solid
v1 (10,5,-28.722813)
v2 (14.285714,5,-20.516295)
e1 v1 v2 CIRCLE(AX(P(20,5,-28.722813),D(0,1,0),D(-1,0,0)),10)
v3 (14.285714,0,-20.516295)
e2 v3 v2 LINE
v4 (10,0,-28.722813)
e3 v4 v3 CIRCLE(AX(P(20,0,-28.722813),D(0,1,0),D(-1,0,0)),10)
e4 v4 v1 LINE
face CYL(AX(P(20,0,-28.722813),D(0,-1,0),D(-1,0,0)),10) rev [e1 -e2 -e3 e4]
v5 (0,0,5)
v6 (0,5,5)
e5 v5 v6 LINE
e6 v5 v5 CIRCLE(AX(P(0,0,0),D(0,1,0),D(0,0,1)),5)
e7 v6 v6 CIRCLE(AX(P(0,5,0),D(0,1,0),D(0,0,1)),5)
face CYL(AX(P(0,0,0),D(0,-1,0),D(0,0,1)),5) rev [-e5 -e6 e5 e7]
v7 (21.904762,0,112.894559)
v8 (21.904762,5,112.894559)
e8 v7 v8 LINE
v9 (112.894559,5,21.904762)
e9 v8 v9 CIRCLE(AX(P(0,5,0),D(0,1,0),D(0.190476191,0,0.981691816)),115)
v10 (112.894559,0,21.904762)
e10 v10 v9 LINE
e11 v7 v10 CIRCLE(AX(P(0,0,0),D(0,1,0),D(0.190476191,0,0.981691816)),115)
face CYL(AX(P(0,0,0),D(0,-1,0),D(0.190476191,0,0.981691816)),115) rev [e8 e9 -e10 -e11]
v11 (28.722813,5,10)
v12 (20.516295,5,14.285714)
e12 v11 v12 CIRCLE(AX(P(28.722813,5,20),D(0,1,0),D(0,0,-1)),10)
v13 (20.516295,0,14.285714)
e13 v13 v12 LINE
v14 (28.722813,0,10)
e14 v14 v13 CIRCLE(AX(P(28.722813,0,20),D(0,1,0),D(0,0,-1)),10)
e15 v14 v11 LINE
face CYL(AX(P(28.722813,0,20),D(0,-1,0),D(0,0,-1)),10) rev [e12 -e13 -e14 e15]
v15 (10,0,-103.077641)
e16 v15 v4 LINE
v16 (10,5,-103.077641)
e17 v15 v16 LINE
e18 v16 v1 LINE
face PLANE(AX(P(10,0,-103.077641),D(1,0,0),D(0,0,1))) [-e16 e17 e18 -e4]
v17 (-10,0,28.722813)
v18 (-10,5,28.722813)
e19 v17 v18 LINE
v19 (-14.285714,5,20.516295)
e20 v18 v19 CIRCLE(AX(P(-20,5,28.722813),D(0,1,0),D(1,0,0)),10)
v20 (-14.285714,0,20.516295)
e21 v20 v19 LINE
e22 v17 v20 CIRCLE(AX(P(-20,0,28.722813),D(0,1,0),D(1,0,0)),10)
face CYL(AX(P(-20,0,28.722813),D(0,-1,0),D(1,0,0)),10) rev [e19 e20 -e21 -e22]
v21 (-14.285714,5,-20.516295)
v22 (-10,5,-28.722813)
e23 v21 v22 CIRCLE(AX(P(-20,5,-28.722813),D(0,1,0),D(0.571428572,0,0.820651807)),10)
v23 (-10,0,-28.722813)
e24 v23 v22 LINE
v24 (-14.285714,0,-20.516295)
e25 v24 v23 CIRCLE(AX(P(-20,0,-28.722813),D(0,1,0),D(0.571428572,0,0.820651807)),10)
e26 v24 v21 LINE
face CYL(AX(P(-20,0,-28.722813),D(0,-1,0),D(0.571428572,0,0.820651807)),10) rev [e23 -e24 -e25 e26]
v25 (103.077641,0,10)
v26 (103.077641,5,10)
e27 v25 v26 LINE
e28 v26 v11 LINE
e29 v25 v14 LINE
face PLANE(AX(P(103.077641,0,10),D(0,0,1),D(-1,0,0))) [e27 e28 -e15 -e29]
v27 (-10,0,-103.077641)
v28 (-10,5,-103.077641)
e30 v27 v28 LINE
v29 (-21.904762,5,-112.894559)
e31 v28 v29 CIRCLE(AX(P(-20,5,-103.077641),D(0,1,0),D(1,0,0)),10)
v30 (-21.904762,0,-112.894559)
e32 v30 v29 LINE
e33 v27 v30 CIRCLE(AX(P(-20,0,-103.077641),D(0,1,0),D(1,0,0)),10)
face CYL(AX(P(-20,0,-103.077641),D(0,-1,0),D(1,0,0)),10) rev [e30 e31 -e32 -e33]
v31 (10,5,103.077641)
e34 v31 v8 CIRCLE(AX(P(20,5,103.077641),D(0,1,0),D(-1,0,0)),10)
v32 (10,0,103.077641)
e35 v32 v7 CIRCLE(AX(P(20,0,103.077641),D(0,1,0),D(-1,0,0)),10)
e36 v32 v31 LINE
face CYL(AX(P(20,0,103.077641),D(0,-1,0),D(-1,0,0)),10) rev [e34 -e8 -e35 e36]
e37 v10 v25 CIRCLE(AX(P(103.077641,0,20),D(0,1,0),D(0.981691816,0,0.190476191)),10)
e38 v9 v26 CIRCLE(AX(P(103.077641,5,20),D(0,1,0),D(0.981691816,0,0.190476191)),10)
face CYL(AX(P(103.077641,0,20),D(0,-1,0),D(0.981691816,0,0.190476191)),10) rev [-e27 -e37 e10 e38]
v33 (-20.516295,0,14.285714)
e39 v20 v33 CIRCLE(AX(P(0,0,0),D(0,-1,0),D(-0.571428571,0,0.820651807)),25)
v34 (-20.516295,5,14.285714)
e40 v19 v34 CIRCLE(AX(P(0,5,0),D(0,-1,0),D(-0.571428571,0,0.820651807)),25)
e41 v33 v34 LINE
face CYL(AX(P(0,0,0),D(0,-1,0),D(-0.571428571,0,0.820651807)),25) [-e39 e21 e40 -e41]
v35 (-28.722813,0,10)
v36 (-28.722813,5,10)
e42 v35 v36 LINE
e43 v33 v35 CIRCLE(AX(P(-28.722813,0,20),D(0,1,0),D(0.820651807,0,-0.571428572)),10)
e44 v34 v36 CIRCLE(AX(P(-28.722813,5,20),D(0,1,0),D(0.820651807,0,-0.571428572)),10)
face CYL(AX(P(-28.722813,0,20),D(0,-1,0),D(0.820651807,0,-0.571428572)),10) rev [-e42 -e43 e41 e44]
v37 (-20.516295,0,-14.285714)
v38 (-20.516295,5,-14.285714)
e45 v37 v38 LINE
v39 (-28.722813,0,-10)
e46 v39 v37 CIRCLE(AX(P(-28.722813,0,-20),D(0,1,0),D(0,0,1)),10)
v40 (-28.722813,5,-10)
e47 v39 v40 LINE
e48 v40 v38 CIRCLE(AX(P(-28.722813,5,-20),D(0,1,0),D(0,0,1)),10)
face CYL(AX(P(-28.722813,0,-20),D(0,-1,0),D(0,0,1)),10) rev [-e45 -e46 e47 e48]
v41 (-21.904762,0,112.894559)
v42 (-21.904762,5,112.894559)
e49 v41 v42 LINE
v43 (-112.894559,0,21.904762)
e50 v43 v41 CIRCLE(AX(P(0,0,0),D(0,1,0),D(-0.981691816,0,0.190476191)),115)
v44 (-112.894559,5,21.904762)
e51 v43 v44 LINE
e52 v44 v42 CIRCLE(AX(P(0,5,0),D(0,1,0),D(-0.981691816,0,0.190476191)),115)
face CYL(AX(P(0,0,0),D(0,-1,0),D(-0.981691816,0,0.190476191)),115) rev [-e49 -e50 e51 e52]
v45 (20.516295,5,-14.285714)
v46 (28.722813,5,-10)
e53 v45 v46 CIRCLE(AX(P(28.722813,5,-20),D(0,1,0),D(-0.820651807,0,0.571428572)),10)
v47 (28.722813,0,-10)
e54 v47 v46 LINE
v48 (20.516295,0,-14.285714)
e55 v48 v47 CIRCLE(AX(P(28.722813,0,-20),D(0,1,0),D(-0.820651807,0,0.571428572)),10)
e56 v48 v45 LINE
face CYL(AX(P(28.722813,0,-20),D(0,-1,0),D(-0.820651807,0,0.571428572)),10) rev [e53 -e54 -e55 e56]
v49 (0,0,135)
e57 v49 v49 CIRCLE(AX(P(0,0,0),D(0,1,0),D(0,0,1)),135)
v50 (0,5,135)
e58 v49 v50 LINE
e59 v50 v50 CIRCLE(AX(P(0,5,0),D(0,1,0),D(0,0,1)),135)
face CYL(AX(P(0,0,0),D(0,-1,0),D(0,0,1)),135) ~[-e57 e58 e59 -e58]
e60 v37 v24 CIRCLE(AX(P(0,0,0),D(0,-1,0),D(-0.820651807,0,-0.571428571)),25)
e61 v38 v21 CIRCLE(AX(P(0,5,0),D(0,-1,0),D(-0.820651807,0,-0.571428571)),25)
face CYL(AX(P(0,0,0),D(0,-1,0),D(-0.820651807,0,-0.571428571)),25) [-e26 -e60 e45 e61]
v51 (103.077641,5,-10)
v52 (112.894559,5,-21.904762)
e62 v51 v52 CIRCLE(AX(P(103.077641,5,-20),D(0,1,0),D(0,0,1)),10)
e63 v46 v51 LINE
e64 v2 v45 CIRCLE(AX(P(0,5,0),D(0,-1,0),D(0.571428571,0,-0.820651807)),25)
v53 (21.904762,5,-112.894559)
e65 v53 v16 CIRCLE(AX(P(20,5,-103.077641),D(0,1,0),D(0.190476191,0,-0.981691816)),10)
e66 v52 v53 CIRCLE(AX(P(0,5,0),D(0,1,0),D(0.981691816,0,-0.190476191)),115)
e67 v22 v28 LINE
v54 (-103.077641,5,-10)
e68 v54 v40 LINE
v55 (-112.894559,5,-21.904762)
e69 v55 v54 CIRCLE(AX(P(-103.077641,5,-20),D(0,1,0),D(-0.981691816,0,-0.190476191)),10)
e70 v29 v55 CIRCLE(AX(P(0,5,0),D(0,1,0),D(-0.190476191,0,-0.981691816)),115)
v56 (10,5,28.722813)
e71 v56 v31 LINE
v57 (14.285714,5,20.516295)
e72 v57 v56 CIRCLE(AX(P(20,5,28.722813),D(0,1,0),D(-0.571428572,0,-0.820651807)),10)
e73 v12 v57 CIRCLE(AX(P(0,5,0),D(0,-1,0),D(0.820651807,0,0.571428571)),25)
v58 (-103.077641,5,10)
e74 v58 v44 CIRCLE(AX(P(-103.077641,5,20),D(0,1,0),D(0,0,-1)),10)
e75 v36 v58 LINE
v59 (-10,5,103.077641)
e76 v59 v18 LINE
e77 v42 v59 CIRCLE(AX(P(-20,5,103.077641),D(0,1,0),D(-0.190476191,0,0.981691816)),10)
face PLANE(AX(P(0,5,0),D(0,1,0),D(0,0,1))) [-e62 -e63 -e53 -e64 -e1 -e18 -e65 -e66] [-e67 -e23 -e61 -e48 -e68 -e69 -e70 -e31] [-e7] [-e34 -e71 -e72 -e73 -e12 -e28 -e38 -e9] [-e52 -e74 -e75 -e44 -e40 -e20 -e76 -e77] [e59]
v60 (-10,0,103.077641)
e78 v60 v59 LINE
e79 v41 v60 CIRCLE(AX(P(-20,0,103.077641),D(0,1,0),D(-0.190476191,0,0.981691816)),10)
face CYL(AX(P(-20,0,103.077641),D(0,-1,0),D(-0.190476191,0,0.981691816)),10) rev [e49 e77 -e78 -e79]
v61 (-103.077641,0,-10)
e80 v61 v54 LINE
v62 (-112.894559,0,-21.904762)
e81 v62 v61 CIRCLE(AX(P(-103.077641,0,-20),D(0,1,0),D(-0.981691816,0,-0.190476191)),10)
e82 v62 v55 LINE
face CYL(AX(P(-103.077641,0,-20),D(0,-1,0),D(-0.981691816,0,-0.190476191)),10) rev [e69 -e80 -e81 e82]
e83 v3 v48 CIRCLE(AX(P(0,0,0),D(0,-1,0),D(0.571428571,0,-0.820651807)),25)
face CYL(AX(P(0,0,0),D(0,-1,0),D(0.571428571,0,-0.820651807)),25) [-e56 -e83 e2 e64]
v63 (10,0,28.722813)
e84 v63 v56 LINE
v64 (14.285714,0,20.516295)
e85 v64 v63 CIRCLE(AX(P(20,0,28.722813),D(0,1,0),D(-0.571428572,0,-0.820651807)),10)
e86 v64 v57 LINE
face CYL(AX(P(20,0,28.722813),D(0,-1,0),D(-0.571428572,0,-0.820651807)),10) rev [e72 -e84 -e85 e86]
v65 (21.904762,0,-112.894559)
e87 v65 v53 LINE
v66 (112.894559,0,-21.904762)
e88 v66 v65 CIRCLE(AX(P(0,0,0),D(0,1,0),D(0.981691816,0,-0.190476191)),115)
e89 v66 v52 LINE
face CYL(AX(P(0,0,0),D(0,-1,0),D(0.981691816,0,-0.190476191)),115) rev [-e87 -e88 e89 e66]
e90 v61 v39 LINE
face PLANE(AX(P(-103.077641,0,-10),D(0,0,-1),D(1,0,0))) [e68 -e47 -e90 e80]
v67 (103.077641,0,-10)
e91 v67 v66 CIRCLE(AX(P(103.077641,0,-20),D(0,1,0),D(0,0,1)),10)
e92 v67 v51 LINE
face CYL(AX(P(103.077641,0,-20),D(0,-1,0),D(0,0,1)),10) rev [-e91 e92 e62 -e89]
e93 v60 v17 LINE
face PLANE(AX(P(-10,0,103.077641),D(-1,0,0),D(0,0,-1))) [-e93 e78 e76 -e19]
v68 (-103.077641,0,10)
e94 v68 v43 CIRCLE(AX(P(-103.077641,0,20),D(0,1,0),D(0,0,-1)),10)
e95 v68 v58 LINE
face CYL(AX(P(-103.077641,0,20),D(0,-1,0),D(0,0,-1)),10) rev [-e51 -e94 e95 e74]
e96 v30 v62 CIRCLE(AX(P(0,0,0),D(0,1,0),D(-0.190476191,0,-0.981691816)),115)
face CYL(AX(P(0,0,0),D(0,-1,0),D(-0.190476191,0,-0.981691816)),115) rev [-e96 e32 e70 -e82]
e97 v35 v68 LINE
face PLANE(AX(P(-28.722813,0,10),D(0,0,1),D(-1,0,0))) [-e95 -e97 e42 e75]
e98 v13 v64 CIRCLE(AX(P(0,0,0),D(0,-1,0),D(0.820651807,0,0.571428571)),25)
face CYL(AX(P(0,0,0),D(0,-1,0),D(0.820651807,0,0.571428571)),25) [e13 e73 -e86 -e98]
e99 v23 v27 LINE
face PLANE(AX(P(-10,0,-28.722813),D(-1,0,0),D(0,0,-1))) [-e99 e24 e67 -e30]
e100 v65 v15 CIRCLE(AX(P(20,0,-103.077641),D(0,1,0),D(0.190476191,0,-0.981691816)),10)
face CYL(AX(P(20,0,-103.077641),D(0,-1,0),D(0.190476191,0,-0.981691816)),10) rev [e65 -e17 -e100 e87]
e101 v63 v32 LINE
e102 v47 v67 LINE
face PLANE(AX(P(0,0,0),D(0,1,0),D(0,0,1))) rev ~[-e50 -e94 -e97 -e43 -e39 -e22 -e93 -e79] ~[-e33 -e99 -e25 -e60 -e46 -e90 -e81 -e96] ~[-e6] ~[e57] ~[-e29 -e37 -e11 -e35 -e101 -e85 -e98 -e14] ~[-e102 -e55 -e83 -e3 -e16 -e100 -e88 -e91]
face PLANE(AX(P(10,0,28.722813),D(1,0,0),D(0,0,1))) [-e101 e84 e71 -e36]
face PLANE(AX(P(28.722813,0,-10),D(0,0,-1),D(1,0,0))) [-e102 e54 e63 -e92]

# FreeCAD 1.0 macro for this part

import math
import FreeCAD as App
import Part
import Sketcher
from FreeCAD import Vector

doc = App.newDocument("Part")
body = doc.addObject("PartDesign::Body", "Body")

sketch1 = doc.addObject("Sketcher::SketchObject", "Sketch")
body.addObject(sketch1)
sketch1.AttachmentSupport = (doc.XZ_Plane, [""])
sketch1.MapMode = "FlatFace"
sketch1.addGeometry(Part.Circle(Vector(0, 0, 0), Vector(0, 0, 1), 135), False)
sketch1.addGeometry(Part.LineSegment(Vector(-29, -10, 0), Vector(-103, -10, 0)), False)
sketch1.addGeometry(Part.ArcOfCircle(Part.Circle(Vector(-103, -20, 0), Vector(0, 0, 1), 10), math.radians(90), math.radians(191)), False)
sketch1.addGeometry(Part.ArcOfCircle(Part.Circle(Vector(0, 0, 0), Vector(0, 0, 1), 115), math.radians(-169), math.radians(-101)), False)
sketch1.addGeometry(Part.ArcOfCircle(Part.Circle(Vector(-20, -103, 0), Vector(0, 0, 1), 10), math.radians(-101), math.radians(0)), False)
sketch1.addGeometry(Part.LineSegment(Vector(-10, -103, 0), Vector(-10, -29, 0)), False)
sketch1.addGeometry(Part.ArcOfCircle(Part.Circle(Vector(-20, -29, 0), Vector(0, 0, 1), 10), math.radians(0), math.radians(55)), False)
sketch1.addGeometry(Part.ArcOfCircle(Part.Circle(Vector(0, 0, 0), Vector(0, 0, 1), 25), math.radians(-145), math.radians(-125)), False)
sketch1.addGeometry(Part.ArcOfCircle(Part.Circle(Vector(-29, -20, 0), Vector(0, 0, 1), 10), math.radians(35), math.radians(90)), False)
sketch1.addGeometry(Part.LineSegment(Vector(-10, 29, 0), Vector(-10, 103, 0)), False)
sketch1.addGeometry(Part.ArcOfCircle(Part.Circle(Vector(-20, 103, 0), Vector(0, 0, 1), 10), math.radians(0), math.radians(101)), False)
sketch1.addGeometry(Part.ArcOfCircle(Part.Circle(Vector(0, 0, 0), Vector(0, 0, 1), 115), math.radians(101), math.radians(169)), False)
sketch1.addGeometry(Part.ArcOfCircle(Part.Circle(Vector(-103, 20, 0), Vector(0, 0, 1), 10), math.radians(169), math.radians(270)), False)
sketch1.addGeometry(Part.LineSegment(Vector(-103, 10, 0), Vector(-29, 10, 0)), False)
sketch1.addGeometry(Part.ArcOfCircle(Part.Circle(Vector(-29, 20, 0), Vector(0, 0, 1), 10), math.radians(-90), math.radians(-35)), False)
sketch1.addGeometry(Part.ArcOfCircle(Part.Circle(Vector(0, 0, 0), Vector(0, 0, 1), 25), math.radians(125), math.radians(145)), False)
sketch1.addGeometry(Part.ArcOfCircle(Part.Circle(Vector(-20, 29, 0), Vector(0, 0, 1), 10), math.radians(-55), math.radians(0)), False)
sketch1.addGeometry(Part.LineSegment(Vector(10, -29, 0), Vector(10, -103, 0)), False)
sketch1.addGeometry(Part.ArcOfCircle(Part.Circle(Vector(20, -103, 0), Vector(0, 0, 1), 10), math.radians(180), math.radians(281)), False)
sketch1.addGeometry(Part.ArcOfCircle(Part.Circle(Vector(0, 0, 0), Vector(0, 0, 1), 115), math.radians(-79), math.radians(-11)), False)
sketch1.addGeometry(Part.ArcOfCircle(Part.Circle(Vector(103, -20, 0), Vector(0, 0, 1), 10), math.radians(-11), math.radians(90)), False)
sketch1.addGeometry(Part.LineSegment(Vector(103, -10, 0), Vector(29, -10, 0)), False)
sketch1.addGeometry(Part.ArcOfCircle(Part.Circle(Vector(29, -20, 0), Vector(0, 0, 1), 10), math.radians(90), math.radians(145)), False)
sketch1.addGeometry(Part.ArcOfCircle(Part.Circle(Vector(0, 0, 0), Vector(0, 0, 1), 25), math.radians(-55), math.radians(-35)), False)
sketch1.addGeometry(Part.ArcOfCircle(Part.Circle(Vector(20, -29, 0), Vector(0, 0, 1), 10), math.radians(125), math.radians(180)), False)
sketch1.addGeometry(Part.Circle(Vector(0, 0, 0), Vector(0, 0, 1), 5), False)
sketch1.addGeometry(Part.LineSegment(Vector(29, 10, 0), Vector(103, 10, 0)), False)
sketch1.addGeometry(Part.ArcOfCircle(Part.Circle(Vector(103, 20, 0), Vector(0, 0, 1), 10), math.radians(-90), math.radians(11)), False)
sketch1.addGeometry(Part.ArcOfCircle(Part.Circle(Vector(0, 0, 0), Vector(0, 0, 1), 115), math.radians(11), math.radians(79)), False)
sketch1.addGeometry(Part.ArcOfCircle(Part.Circle(Vector(20, 103, 0), Vector(0, 0, 1), 10), math.radians(79), math.radians(180)), False)
sketch1.addGeometry(Part.LineSegment(Vector(10, 103, 0), Vector(10, 29, 0)), False)
sketch1.addGeometry(Part.ArcOfCircle(Part.Circle(Vector(20, 29, 0), Vector(0, 0, 1), 10), math.radians(-180), math.radians(-125)), False)
sketch1.addGeometry(Part.ArcOfCircle(Part.Circle(Vector(0, 0, 0), Vector(0, 0, 1), 25), math.radians(35), math.radians(55)), False)
sketch1.addGeometry(Part.ArcOfCircle(Part.Circle(Vector(29, 20, 0), Vector(0, 0, 1), 10), math.radians(-145), math.radians(-90)), False)
sketch1.addConstraint(Sketcher.Constraint("Tangent", 1, 2, 2, 1))
sketch1.addConstraint(Sketcher.Constraint("Tangent", 2, 2, 3, 1))
sketch1.addConstraint(Sketcher.Constraint("Tangent", 3, 2, 4, 1))
sketch1.addConstraint(Sketcher.Constraint("Tangent", 4, 2, 5, 1))
sketch1.addConstraint(Sketcher.Constraint("Tangent", 5, 2, 6, 1))
sketch1.addConstraint(Sketcher.Constraint("Tangent", 6, 2, 7, 2))
sketch1.addConstraint(Sketcher.Constraint("Tangent", 7, 1, 8, 1))
sketch1.addConstraint(Sketcher.Constraint("Tangent", 8, 2, 1, 1))
sketch1.addConstraint(Sketcher.Constraint("Tangent", 9, 2, 10, 1))
sketch1.addConstraint(Sketcher.Constraint("Tangent", 10, 2, 11, 1))
sketch1.addConstraint(Sketcher.Constraint("Tangent", 11, 2, 12, 1))
sketch1.addConstraint(Sketcher.Constraint("Tangent", 12, 2, 13, 1))
sketch1.addConstraint(Sketcher.Constraint("Tangent", 13, 2, 14, 1))
sketch1.addConstraint(Sketcher.Constraint("Tangent", 14, 2, 15, 2))
sketch1.addConstraint(Sketcher.Constraint("Tangent", 15, 1, 16, 1))
sketch1.addConstraint(Sketcher.Constraint("Tangent", 16, 2, 9, 1))
sketch1.addConstraint(Sketcher.Constraint("Tangent", 17, 2, 18, 1))
sketch1.addConstraint(Sketcher.Constraint("Tangent", 18, 2, 19, 1))
sketch1.addConstraint(Sketcher.Constraint("Tangent", 19, 2, 20, 1))
sketch1.addConstraint(Sketcher.Constraint("Tangent", 20, 2, 21, 1))
sketch1.addConstraint(Sketcher.Constraint("Tangent", 21, 2, 22, 1))
sketch1.addConstraint(Sketcher.Constraint("Tangent", 22, 2, 23, 2))
sketch1.addConstraint(Sketcher.Constraint("Tangent", 23, 1, 24, 1))
sketch1.addConstraint(Sketcher.Constraint("Tangent", 24, 2, 17, 1))
sketch1.addConstraint(Sketcher.Constraint("Tangent", 26, 2, 27, 1))
sketch1.addConstraint(Sketcher.Constraint("Tangent", 27, 2, 28, 1))
sketch1.addConstraint(Sketcher.Constraint("Tangent", 28, 2, 29, 1))
sketch1.addConstraint(Sketcher.Constraint("Tangent", 29, 2, 30, 1))
sketch1.addConstraint(Sketcher.Constraint("Tangent", 30, 2, 31, 1))
sketch1.addConstraint(Sketcher.Constraint("Tangent", 31, 2, 32, 2))
sketch1.addConstraint(Sketcher.Constraint("Tangent", 32, 1, 33, 1))
sketch1.addConstraint(Sketcher.Constraint("Tangent", 33, 2, 26, 1))
sketch1.addConstraint(Sketcher.Constraint("Horizontal", 1))
sketch1.addConstraint(Sketcher.Constraint("Vertical", 5))
sketch1.addConstraint(Sketcher.Constraint("Vertical", 9))
sketch1.addConstraint(Sketcher.Constraint("Horizontal", 13))
sketch1.addConstraint(Sketcher.Constraint("Vertical", 17))
sketch1.addConstraint(Sketcher.Constraint("Horizontal", 21))
sketch1.addConstraint(Sketcher.Constraint("Horizontal", 26))
sketch1.addConstraint(Sketcher.Constraint("Vertical", 30))
sketch1.addConstraint(Sketcher.Constraint("Coincident", 0, 3, -1, 1))
sketch1.addConstraint(Sketcher.Constraint("Coincident", 3, 3, -1, 1))
sketch1.addConstraint(Sketcher.Constraint("Coincident", 7, 3, -1, 1))
sketch1.addConstraint(Sketcher.Constraint("Coincident", 11, 3, -1, 1))
sketch1.addConstraint(Sketcher.Constraint("Coincident", 15, 3, -1, 1))
sketch1.addConstraint(Sketcher.Constraint("Coincident", 19, 3, -1, 1))
sketch1.addConstraint(Sketcher.Constraint("Coincident", 23, 3, -1, 1))
sketch1.addConstraint(Sketcher.Constraint("Coincident", 25, 3, -1, 1))
sketch1.addConstraint(Sketcher.Constraint("Coincident", 28, 3, -1, 1))
sketch1.addConstraint(Sketcher.Constraint("Coincident", 32, 3, -1, 1))
sketch1.addConstraint(Sketcher.Constraint("Equal", 2, 4))
sketch1.addConstraint(Sketcher.Constraint("Equal", 4, 6))
sketch1.addConstraint(Sketcher.Constraint("Equal", 6, 8))
sketch1.addConstraint(Sketcher.Constraint("Equal", 8, 10))
sketch1.addConstraint(Sketcher.Constraint("Equal", 3, 11))
sketch1.addConstraint(Sketcher.Constraint("Equal", 10, 12))
sketch1.addConstraint(Sketcher.Constraint("Equal", 12, 14))
sketch1.addConstraint(Sketcher.Constraint("Equal", 7, 15))
sketch1.addConstraint(Sketcher.Constraint("Equal", 14, 16))
sketch1.addConstraint(Sketcher.Constraint("Equal", 16, 18))
sketch1.addConstraint(Sketcher.Constraint("Equal", 11, 19))
sketch1.addConstraint(Sketcher.Constraint("Equal", 18, 20))
sketch1.addConstraint(Sketcher.Constraint("Equal", 20, 22))
sketch1.addConstraint(Sketcher.Constraint("Equal", 15, 23))
sketch1.addConstraint(Sketcher.Constraint("Equal", 22, 24))
sketch1.addConstraint(Sketcher.Constraint("Equal", 24, 27))
sketch1.addConstraint(Sketcher.Constraint("Equal", 19, 28))
sketch1.addConstraint(Sketcher.Constraint("Equal", 27, 29))
sketch1.addConstraint(Sketcher.Constraint("Equal", 29, 31))
sketch1.addConstraint(Sketcher.Constraint("Equal", 23, 32))
sketch1.addConstraint(Sketcher.Constraint("Equal", 31, 33))
sketch1.addConstraint(Sketcher.Constraint("Horizontal", 4, 3, 18, 3))
sketch1.addConstraint(Sketcher.Constraint("Horizontal", 8, 3, 20, 3))
sketch1.addConstraint(Sketcher.Constraint("Horizontal", 14, 3, 27, 3))
sketch1.addConstraint(Sketcher.Constraint("Horizontal", 10, 3, 29, 3))
sketch1.addConstraint(Sketcher.Constraint("Vertical", 6, 3, 10, 3))
sketch1.addConstraint(Sketcher.Constraint("Vertical", 2, 3, 12, 3))
sketch1.addConstraint(Sketcher.Constraint("Equal", 26, 5))
sketch1.addConstraint(Sketcher.Constraint("Diameter", 0, 270.0))
sketch1.addConstraint(Sketcher.Constraint("Diameter", 25, 10.0))
sketch1.addConstraint(Sketcher.Constraint("Radius", 2, 10.0))
sketch1.addConstraint(Sketcher.Constraint("Radius", 3, 115.0))
sketch1.addConstraint(Sketcher.Constraint("Radius", 7, 25.0))
sketch1.addConstraint(Sketcher.Constraint("DistanceY", 2, 3, -1, 1, 20.0))
pad1 = doc.addObject("PartDesign::Pad", "Pad")
body.addObject(pad1)
pad1.Profile = sketch1
pad1.Length = 5
pad1.Reversed = True

doc.recompute()
